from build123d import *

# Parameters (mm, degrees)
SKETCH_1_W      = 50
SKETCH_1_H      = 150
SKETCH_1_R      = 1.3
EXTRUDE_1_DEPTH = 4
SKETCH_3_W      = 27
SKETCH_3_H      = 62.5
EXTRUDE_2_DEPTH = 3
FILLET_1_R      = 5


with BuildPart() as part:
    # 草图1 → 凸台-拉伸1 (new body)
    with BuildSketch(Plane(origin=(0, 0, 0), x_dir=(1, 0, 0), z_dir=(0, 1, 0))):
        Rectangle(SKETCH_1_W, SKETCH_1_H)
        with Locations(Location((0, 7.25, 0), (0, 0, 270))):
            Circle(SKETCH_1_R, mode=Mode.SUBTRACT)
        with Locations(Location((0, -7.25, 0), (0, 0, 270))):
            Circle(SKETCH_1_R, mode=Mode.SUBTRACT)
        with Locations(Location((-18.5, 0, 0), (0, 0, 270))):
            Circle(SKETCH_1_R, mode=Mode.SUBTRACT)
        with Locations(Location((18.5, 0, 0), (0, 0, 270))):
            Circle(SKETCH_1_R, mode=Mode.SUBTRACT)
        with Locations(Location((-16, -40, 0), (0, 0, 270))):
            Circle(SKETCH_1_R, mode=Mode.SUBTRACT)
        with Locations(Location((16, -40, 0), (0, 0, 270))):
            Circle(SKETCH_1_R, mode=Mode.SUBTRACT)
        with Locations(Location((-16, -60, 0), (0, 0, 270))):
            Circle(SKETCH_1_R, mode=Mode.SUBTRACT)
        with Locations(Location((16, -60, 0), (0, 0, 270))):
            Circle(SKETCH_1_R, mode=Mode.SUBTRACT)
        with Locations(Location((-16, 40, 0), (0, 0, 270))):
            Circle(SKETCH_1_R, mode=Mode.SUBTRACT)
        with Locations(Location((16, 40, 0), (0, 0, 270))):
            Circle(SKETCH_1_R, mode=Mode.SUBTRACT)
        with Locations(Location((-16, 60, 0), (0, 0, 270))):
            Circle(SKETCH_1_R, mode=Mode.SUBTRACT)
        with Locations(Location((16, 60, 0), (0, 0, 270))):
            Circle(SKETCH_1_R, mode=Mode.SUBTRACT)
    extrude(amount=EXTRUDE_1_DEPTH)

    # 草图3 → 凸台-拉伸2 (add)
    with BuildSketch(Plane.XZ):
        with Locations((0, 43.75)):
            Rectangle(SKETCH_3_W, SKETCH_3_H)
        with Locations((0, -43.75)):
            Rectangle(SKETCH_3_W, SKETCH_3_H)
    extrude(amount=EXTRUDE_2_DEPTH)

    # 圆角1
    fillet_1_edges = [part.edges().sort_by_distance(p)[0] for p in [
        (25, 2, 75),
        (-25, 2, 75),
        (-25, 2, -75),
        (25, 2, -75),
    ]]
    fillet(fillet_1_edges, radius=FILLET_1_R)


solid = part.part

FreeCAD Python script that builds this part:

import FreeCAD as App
import Part
import Sketcher

V = App.Vector
Q = App.Units.Quantity


def edges_at(feature, points):
    """Names of the edges that pass closest to the given points."""
    edges = feature.Shape.Edges
    near = lambda p: min(range(len(edges)), key=lambda i: edges[i].distToShape(Part.Vertex(*p))[0])
    return sorted({f"Edge{near(p) + 1}" for p in points})

doc = App.newDocument("Part")
body = doc.addObject("PartDesign::Body", "Body")

sketch1 = doc.addObject("Sketcher::SketchObject", "Sketch")
body.addObject(sketch1)
sketch1.AttachmentSupport = (doc.XZ_Plane, [""])
sketch1.MapMode = "FlatFace"
sketch1.addGeometry(Part.LineSegment(V(-25, -75, 0), V(-25, 75, 0)), False)
sketch1.addGeometry(Part.LineSegment(V(-25, 75, 0), V(25, 75, 0)), False)
sketch1.addGeometry(Part.LineSegment(V(25, 75, 0), V(25, -75, 0)), False)
sketch1.addGeometry(Part.LineSegment(V(25, -75, 0), V(-25, -75, 0)), False)
sketch1.addGeometry(Part.Circle(V(-16, 60, 0), V(0, 0, 1), 1.3), False)
sketch1.addGeometry(Part.Circle(V(-16, 40, 0), V(0, 0, 1), 1.3), False)
sketch1.addGeometry(Part.Circle(V(16, 60, 0), V(0, 0, 1), 1.3), False)
sketch1.addGeometry(Part.Circle(V(16, 40, 0), V(0, 0, 1), 1.3), False)
sketch1.addGeometry(Part.Circle(V(0, 7.2, 0), V(0, 0, 1), 1.3), False)
sketch1.addGeometry(Part.Circle(V(-18.5, 0, 0), V(0, 0, 1), 1.3), False)
sketch1.addGeometry(Part.Circle(V(-16, -40, 0), V(0, 0, 1), 1.3), False)
sketch1.addGeometry(Part.Circle(V(-16, -60, 0), V(0, 0, 1), 1.3), False)
sketch1.addGeometry(Part.Circle(V(0, -7.2, 0), V(0, 0, 1), 1.3), False)
sketch1.addGeometry(Part.Circle(V(18.5, 0, 0), V(0, 0, 1), 1.3), False)
sketch1.addGeometry(Part.Circle(V(16, -40, 0), V(0, 0, 1), 1.3), False)
sketch1.addGeometry(Part.Circle(V(16, -60, 0), V(0, 0, 1), 1.3), False)
sketch1.addConstraint(Sketcher.Constraint("Coincident", 0, 2, 1, 1))
sketch1.addConstraint(Sketcher.Constraint("Coincident", 1, 2, 2, 1))
sketch1.addConstraint(Sketcher.Constraint("Coincident", 2, 2, 3, 1))
sketch1.addConstraint(Sketcher.Constraint("Coincident", 3, 2, 0, 1))
sketch1.addConstraint(Sketcher.Constraint("Vertical", 0))
sketch1.addConstraint(Sketcher.Constraint("Horizontal", 1))
sketch1.addConstraint(Sketcher.Constraint("Vertical", 2))
sketch1.addConstraint(Sketcher.Constraint("Horizontal", 3))
sketch1.addConstraint(Sketcher.Constraint("Equal", 4, 5))
sketch1.addConstraint(Sketcher.Constraint("Equal", 5, 6))
sketch1.addConstraint(Sketcher.Constraint("Equal", 6, 7))
sketch1.addConstraint(Sketcher.Constraint("Equal", 7, 8))
sketch1.addConstraint(Sketcher.Constraint("Equal", 8, 9))
sketch1.addConstraint(Sketcher.Constraint("Equal", 9, 10))
sketch1.addConstraint(Sketcher.Constraint("Equal", 10, 11))
sketch1.addConstraint(Sketcher.Constraint("Equal", 11, 12))
sketch1.addConstraint(Sketcher.Constraint("Equal", 12, 13))
sketch1.addConstraint(Sketcher.Constraint("Equal", 13, 14))
sketch1.addConstraint(Sketcher.Constraint("Equal", 14, 15))
sketch1.addConstraint(Sketcher.Constraint("Symmetric", 7, 3, 10, 3, -1, 1))
sketch1.addConstraint(Sketcher.Constraint("Symmetric", 6, 3, 11, 3, -1, 1))
sketch1.addConstraint(Sketcher.Constraint("Symmetric", 8, 3, 12, 3, -1, 1))
sketch1.addConstraint(Sketcher.Constraint("Symmetric", 9, 3, 13, 3, -1, 1))
sketch1.addConstraint(Sketcher.Constraint("Symmetric", 5, 3, 14, 3, -1, 1))
sketch1.addConstraint(Sketcher.Constraint("Symmetric", 4, 3, 15, 3, -1, 1))
sketch1.addConstraint(Sketcher.Constraint("Symmetric", 0, 2, 2, 2, -1, 1))
sketch1.addConstraint(Sketcher.Constraint("Symmetric", 4, 3, 6, 3, -2))
sketch1.addConstraint(Sketcher.Constraint("Symmetric", 5, 3, 7, 3, -2))
sketch1.addConstraint(Sketcher.Constraint("PointOnObject", 8, 3, -2))
sketch1.addConstraint(Sketcher.Constraint("PointOnObject", 9, 3, -1))
sketch1.addConstraint(Sketcher.Constraint("Vertical", 4, 3, 5, 3))
sketch1.addConstraint(Sketcher.Constraint("Diameter", 4, Q("2.6 mm")))
sketch1.addConstraint(Sketcher.Constraint("DistanceX", 1, 1, 1, 2, Q("50 mm")))
sketch1.addConstraint(Sketcher.Constraint("DistanceY", 0, 1, 0, 2, Q("150 mm")))
sketch1.addConstraint(Sketcher.Constraint("DistanceX", 4, 3, -1, 1, Q("16 mm")))
sketch1.addConstraint(Sketcher.Constraint("DistanceY", -1, 1, 4, 3, Q("60 mm")))
sketch1.addConstraint(Sketcher.Constraint("DistanceY", -1, 1, 5, 3, Q("40 mm")))
sketch1.addConstraint(Sketcher.Constraint("DistanceX", 9, 3, 13, 3, Q("37 mm")))
sketch1.addConstraint(Sketcher.Constraint("DistanceY", 12, 3, 8, 3, Q("14.5 mm")))
pad1 = doc.addObject("PartDesign::Pad", "Pad")
body.addObject(pad1)
pad1.Profile = sketch1
pad1.Length = 4
pad1.Reversed = True

sketch2 = doc.addObject("Sketcher::SketchObject", "Sketch001")
body.addObject(sketch2)
sketch2.AttachmentSupport = (doc.XZ_Plane, [""])
sketch2.MapMode = "FlatFace"
sketch2.addGeometry(Part.LineSegment(V(-14, 75, 0), V(-14, 12, 0)), False)
sketch2.addGeometry(Part.LineSegment(V(-14, 12, 0), V(14, 12, 0)), False)
sketch2.addGeometry(Part.LineSegment(V(14, 12, 0), V(14, 75, 0)), False)
sketch2.addGeometry(Part.LineSegment(V(14, 75, 0), V(-14, 75, 0)), False)
sketch2.addGeometry(Part.LineSegment(V(-14, -12, 0), V(-14, -75, 0)), False)
sketch2.addGeometry(Part.LineSegment(V(-14, -75, 0), V(14, -75, 0)), False)
sketch2.addGeometry(Part.LineSegment(V(14, -75, 0), V(14, -12, 0)), False)
sketch2.addGeometry(Part.LineSegment(V(14, -12, 0), V(-14, -12, 0)), False)
sketch2.addConstraint(Sketcher.Constraint("Coincident", 0, 2, 1, 1))
sketch2.addConstraint(Sketcher.Constraint("Coincident", 1, 2, 2, 1))
sketch2.addConstraint(Sketcher.Constraint("Coincident", 2, 2, 3, 1))
sketch2.addConstraint(Sketcher.Constraint("Coincident", 3, 2, 0, 1))
sketch2.addConstraint(Sketcher.Constraint("Coincident", 4, 2, 5, 1))
sketch2.addConstraint(Sketcher.Constraint("Coincident", 5, 2, 6, 1))
sketch2.addConstraint(Sketcher.Constraint("Coincident", 6, 2, 7, 1))
sketch2.addConstraint(Sketcher.Constraint("Coincident", 7, 2, 4, 1))
sketch2.addConstraint(Sketcher.Constraint("Vertical", 0))
sketch2.addConstraint(Sketcher.Constraint("Horizontal", 1))
sketch2.addConstraint(Sketcher.Constraint("Vertical", 2))
sketch2.addConstraint(Sketcher.Constraint("Horizontal", 3))
sketch2.addConstraint(Sketcher.Constraint("Vertical", 4))
sketch2.addConstraint(Sketcher.Constraint("Horizontal", 5))
sketch2.addConstraint(Sketcher.Constraint("Vertical", 6))
sketch2.addConstraint(Sketcher.Constraint("Horizontal", 7))
sketch2.addConstraint(Sketcher.Constraint("Symmetric", 2, 2, 4, 2, -1, 1))
sketch2.addConstraint(Sketcher.Constraint("Symmetric", 0, 2, 6, 2, -1, 1))
sketch2.addConstraint(Sketcher.Constraint("Vertical", 3, 2, 4, 2))
sketch2.addConstraint(Sketcher.Constraint("DistanceX", 1, 1, 1, 2, Q("27 mm")))
sketch2.addConstraint(Sketcher.Constraint("DistanceY", 0, 2, 0, 1, Q("62.5 mm")))
sketch2.addConstraint(Sketcher.Constraint("DistanceY", -1, 1, 2, 2, Q("75 mm")))
pad2 = doc.addObject("PartDesign::Pad", "Pad001")
body.addObject(pad2)
pad2.Profile = sketch2
pad2.Length = 3
doc.recompute()

fillet = doc.addObject("PartDesign::Fillet", "Fillet")
body.addObject(fillet)
fillet.Base = (pad2, edges_at(pad2, [
    (25, 2, 75),
    (-25, 2, 75),
    (-25, 2, -75),
    (25, 2, -75),
]))
fillet.Radius = 5

doc.recompute()
